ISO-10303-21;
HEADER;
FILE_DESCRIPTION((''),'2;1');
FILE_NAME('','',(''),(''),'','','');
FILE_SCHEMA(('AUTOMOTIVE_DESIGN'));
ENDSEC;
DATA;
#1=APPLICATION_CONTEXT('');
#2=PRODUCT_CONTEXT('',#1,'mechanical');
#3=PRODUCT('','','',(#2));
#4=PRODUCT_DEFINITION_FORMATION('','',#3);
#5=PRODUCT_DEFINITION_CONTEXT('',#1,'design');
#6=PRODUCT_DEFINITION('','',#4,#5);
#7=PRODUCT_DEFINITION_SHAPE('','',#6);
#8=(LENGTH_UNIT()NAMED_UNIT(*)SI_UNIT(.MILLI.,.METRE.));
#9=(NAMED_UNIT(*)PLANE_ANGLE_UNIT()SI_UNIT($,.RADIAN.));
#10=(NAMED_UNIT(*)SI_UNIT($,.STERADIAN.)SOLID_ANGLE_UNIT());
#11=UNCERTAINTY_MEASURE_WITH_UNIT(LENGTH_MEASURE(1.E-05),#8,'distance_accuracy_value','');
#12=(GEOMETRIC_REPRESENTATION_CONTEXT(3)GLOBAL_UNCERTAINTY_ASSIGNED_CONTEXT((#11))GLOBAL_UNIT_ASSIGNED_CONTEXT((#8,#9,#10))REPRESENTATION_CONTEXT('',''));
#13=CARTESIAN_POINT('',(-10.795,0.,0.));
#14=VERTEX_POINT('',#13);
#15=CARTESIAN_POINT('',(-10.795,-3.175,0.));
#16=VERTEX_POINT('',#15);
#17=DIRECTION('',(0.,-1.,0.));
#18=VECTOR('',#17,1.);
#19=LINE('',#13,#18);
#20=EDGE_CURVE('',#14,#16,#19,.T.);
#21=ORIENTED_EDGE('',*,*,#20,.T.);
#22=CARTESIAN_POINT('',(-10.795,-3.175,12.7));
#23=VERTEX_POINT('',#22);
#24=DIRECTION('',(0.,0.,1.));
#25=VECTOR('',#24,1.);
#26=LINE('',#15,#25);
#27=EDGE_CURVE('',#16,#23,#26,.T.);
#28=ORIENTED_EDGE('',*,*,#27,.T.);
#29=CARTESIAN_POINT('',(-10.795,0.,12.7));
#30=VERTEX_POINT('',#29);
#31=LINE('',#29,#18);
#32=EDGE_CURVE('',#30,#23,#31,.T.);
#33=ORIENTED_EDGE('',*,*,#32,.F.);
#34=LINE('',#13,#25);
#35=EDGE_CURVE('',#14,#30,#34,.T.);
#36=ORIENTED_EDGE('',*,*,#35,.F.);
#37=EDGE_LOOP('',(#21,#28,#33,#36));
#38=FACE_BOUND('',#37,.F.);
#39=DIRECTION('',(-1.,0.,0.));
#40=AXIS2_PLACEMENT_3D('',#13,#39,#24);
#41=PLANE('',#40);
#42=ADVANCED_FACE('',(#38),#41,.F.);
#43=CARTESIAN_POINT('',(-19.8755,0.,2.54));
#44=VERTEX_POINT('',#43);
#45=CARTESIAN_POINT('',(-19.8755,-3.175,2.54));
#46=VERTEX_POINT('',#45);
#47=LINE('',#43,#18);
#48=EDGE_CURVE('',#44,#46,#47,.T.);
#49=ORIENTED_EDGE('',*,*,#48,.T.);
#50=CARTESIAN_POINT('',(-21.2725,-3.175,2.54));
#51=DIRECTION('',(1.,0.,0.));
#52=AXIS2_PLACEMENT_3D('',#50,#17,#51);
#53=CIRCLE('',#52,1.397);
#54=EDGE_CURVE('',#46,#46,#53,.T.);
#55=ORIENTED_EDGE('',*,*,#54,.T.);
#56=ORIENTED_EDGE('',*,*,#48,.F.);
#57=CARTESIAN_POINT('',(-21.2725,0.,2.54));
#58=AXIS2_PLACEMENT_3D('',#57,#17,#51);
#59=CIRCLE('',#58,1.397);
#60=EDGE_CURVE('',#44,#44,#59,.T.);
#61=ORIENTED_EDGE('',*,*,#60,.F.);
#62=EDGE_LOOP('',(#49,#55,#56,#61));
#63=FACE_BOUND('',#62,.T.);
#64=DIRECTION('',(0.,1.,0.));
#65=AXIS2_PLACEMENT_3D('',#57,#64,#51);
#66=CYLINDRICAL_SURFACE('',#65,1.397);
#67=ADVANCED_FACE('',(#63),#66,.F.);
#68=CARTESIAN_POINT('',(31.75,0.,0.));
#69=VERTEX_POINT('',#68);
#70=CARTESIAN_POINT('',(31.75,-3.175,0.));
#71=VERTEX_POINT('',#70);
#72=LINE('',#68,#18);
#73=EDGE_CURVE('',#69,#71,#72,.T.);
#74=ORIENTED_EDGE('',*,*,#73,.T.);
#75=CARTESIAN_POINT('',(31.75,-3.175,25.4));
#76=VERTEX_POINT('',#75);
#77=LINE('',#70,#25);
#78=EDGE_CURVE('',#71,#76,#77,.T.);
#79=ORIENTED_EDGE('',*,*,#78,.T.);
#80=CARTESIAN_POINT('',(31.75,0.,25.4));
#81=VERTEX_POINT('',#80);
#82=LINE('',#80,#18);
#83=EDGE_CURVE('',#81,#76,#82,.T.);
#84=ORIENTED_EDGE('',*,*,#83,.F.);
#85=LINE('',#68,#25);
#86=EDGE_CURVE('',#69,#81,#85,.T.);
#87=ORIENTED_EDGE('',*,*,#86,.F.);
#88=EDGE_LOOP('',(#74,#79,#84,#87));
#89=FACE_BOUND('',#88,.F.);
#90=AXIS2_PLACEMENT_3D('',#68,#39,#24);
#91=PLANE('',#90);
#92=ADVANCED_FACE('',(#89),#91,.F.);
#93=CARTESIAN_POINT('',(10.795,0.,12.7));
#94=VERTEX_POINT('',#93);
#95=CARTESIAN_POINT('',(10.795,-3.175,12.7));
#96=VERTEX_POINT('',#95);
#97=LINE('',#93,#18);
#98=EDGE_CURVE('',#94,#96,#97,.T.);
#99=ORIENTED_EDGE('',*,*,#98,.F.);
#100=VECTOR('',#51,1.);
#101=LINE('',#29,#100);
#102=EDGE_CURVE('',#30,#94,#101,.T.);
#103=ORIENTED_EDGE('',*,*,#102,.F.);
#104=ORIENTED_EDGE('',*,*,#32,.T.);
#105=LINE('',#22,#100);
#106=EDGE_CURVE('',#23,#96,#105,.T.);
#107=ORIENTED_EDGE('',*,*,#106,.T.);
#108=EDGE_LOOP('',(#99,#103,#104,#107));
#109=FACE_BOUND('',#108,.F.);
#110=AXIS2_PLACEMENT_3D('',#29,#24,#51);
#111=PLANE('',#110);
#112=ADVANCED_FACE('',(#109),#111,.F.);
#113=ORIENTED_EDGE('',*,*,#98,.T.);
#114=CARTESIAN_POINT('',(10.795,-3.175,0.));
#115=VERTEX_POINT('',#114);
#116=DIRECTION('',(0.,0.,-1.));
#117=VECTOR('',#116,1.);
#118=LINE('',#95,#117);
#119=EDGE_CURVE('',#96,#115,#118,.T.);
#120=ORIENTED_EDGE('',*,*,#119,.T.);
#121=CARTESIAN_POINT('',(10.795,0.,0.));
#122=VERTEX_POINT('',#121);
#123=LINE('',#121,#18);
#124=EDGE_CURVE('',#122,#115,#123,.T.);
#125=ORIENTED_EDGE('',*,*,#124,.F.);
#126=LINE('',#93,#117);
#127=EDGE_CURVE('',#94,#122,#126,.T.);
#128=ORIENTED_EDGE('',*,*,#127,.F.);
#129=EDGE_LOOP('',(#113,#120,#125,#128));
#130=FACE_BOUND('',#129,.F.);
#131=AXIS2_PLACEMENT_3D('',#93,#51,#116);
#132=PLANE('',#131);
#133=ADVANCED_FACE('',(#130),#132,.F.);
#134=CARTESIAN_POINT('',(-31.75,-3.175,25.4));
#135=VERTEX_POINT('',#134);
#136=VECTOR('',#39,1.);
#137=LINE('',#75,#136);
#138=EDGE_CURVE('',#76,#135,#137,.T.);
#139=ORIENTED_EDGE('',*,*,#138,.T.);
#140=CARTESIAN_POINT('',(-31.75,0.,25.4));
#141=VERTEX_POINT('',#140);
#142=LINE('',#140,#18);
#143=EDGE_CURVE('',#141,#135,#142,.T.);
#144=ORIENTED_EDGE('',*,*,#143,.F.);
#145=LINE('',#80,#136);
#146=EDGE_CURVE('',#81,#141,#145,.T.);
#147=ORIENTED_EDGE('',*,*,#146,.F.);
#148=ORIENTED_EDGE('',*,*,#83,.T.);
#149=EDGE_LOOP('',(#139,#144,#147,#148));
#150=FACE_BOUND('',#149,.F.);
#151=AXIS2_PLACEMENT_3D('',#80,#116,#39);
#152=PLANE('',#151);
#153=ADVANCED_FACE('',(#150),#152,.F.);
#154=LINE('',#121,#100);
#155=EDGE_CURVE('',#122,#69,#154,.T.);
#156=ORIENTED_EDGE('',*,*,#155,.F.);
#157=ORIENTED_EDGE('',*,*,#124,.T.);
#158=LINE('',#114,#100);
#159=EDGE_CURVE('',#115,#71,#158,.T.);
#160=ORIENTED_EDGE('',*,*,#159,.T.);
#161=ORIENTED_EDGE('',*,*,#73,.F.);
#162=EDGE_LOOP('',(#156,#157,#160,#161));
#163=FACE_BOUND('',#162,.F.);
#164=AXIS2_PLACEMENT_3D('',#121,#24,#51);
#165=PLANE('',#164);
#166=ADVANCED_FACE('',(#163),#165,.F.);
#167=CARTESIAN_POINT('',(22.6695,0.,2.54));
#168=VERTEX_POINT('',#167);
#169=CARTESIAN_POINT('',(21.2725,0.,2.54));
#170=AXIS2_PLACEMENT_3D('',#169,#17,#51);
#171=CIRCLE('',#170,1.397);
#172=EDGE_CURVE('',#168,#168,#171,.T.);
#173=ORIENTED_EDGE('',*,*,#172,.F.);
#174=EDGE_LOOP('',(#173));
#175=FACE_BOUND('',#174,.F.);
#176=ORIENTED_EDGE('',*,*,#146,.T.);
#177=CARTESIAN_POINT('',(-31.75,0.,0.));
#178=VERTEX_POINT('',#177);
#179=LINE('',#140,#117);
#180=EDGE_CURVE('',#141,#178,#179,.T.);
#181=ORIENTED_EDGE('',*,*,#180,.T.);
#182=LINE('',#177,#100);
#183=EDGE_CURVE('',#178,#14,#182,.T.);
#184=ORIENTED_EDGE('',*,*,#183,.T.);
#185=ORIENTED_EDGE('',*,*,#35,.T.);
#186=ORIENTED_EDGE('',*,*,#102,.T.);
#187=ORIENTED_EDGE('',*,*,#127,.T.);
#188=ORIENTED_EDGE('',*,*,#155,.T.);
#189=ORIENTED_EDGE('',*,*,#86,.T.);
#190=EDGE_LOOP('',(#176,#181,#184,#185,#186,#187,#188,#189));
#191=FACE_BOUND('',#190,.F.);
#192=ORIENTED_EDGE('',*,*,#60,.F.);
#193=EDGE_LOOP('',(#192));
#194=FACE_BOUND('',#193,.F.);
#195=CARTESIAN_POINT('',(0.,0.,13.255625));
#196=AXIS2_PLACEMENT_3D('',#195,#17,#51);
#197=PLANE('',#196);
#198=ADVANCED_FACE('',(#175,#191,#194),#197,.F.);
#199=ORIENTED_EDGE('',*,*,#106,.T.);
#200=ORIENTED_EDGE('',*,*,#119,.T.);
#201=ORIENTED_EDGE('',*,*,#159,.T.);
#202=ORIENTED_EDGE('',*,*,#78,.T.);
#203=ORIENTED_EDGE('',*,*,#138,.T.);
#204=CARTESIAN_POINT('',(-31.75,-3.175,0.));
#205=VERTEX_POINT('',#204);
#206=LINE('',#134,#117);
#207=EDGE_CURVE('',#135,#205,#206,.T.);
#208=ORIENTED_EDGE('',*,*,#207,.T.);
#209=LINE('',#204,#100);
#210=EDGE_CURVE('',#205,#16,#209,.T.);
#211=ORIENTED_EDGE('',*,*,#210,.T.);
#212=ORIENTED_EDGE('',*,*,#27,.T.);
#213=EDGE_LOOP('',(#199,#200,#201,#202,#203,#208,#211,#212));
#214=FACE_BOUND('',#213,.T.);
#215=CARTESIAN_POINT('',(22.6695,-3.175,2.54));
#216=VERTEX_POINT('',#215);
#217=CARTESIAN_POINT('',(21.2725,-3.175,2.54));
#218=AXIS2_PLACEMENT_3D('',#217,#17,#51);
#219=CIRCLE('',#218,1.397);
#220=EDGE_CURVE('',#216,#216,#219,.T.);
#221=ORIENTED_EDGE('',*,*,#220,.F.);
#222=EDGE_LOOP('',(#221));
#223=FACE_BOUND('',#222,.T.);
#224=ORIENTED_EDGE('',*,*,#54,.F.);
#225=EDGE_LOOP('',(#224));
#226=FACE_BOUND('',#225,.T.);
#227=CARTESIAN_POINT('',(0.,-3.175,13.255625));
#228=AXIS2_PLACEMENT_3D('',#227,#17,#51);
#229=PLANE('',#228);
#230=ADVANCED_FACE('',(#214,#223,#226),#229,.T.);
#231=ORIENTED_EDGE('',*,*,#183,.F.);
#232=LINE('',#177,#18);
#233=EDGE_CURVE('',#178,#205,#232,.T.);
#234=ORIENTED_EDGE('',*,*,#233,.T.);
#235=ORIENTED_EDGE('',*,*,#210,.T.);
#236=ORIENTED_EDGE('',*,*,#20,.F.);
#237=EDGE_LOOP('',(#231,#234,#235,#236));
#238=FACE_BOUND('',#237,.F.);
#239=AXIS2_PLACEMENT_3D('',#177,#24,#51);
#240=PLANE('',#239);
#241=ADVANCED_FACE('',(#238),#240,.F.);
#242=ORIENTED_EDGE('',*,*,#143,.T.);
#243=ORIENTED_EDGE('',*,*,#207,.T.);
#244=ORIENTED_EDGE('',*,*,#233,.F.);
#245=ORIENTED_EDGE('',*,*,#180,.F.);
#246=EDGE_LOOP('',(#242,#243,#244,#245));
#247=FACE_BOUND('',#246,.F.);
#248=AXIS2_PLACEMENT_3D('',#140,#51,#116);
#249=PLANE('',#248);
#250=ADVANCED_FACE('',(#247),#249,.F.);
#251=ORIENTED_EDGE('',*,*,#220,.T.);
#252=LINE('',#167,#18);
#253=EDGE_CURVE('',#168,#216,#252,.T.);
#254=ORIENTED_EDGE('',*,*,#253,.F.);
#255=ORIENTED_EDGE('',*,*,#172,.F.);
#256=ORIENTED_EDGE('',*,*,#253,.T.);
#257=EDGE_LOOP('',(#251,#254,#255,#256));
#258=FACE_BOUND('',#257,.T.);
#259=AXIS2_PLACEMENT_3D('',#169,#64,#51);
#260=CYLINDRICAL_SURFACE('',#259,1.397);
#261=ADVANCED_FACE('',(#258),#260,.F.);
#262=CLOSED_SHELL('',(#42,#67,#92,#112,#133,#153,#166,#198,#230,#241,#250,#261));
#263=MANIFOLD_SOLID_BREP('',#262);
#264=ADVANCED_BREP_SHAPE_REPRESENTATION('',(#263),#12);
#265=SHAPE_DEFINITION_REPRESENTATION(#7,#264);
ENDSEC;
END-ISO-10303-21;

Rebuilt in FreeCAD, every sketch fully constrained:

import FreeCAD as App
import Part
import Sketcher

V = App.Vector
Q = App.Units.Quantity


def add_polygon(sketch, points):
    """Adds a closed chain of lines whose ends are joined by coincident constraints."""
    first, n = sketch.GeometryCount, len(points)
    for a, b in zip(points, points[1:] + points[:1]):
        sketch.addGeometry(Part.LineSegment(App.Vector(*a, 0), App.Vector(*b, 0)), False)
    for i in range(n):
        sketch.addConstraint(Sketcher.Constraint("Coincident", first + i, 2, first + (i + 1) % n, 1))

doc = App.newDocument("Part")
body = doc.addObject("PartDesign::Body", "Body")

sketch1 = body.newObject("Sketcher::SketchObject", "Sketch")
sketch1.AttachmentSupport = (doc.getObject("XZ_Plane"), [""])
sketch1.MapMode = "FlatFace"
add_polygon(sketch1, [(31.8, 0), (31.8, 25.4), (-31.8, 25.4), (-31.8, 0), (-10.8, 0), (-10.8, 12.7), (10.8, 12.7), (10.8, 0)])
sketch1.addGeometry(Part.Circle(V(-21.3, 2.5, 0), V(0, 0, 1), 1.4), False)
sketch1.addGeometry(Part.Circle(V(21.3, 2.5, 0), V(0, 0, 1), 1.4), False)
sketch1.addConstraint(Sketcher.Constraint("Vertical", 0))
sketch1.addConstraint(Sketcher.Constraint("Horizontal", 1))
sketch1.addConstraint(Sketcher.Constraint("Vertical", 2))
sketch1.addConstraint(Sketcher.Constraint("Horizontal", 3))
sketch1.addConstraint(Sketcher.Constraint("Vertical", 4))
sketch1.addConstraint(Sketcher.Constraint("Horizontal", 5))
sketch1.addConstraint(Sketcher.Constraint("Vertical", 6))
sketch1.addConstraint(Sketcher.Constraint("Horizontal", 7))
sketch1.addConstraint(Sketcher.Constraint("Equal", 8, 9))
sketch1.addConstraint(Sketcher.Constraint("Symmetric", 3, 2, 6, 2, -1, 1))
sketch1.addConstraint(Sketcher.Constraint("Symmetric", 8, 3, 9, 3, -2))
sketch1.addConstraint(Sketcher.Constraint("Symmetric", 2, 2, 7, 2, -2))
sketch1.addConstraint(Sketcher.Constraint("Diameter", 8, Q("0.11 in")))
sketch1.addConstraint(Sketcher.Constraint("DistanceY", 0, 1, 0, 2, Q("1 in")))
sketch1.addConstraint(Sketcher.Constraint("DistanceX", 1, 2, 1, 1, Q("2.5 in")))
sketch1.addConstraint(Sketcher.Constraint("DistanceY", 4, 1, 4, 2, Q("0.5 in")))
sketch1.addConstraint(Sketcher.Constraint("DistanceX", 5, 1, 5, 2, Q("0.85 in")))
sketch1.addConstraint(Sketcher.Constraint("DistanceY", -1, 1, 8, 3, Q("0.1 in")))
sketch1.addConstraint(Sketcher.Constraint("DistanceX", 8, 3, 9, 3, Q("1.675 in")))
pad1 = body.newObject("PartDesign::Pad", "Pad")
pad1.Profile = sketch1
pad1.Length = Q("0.125 in")

doc.recompute()
